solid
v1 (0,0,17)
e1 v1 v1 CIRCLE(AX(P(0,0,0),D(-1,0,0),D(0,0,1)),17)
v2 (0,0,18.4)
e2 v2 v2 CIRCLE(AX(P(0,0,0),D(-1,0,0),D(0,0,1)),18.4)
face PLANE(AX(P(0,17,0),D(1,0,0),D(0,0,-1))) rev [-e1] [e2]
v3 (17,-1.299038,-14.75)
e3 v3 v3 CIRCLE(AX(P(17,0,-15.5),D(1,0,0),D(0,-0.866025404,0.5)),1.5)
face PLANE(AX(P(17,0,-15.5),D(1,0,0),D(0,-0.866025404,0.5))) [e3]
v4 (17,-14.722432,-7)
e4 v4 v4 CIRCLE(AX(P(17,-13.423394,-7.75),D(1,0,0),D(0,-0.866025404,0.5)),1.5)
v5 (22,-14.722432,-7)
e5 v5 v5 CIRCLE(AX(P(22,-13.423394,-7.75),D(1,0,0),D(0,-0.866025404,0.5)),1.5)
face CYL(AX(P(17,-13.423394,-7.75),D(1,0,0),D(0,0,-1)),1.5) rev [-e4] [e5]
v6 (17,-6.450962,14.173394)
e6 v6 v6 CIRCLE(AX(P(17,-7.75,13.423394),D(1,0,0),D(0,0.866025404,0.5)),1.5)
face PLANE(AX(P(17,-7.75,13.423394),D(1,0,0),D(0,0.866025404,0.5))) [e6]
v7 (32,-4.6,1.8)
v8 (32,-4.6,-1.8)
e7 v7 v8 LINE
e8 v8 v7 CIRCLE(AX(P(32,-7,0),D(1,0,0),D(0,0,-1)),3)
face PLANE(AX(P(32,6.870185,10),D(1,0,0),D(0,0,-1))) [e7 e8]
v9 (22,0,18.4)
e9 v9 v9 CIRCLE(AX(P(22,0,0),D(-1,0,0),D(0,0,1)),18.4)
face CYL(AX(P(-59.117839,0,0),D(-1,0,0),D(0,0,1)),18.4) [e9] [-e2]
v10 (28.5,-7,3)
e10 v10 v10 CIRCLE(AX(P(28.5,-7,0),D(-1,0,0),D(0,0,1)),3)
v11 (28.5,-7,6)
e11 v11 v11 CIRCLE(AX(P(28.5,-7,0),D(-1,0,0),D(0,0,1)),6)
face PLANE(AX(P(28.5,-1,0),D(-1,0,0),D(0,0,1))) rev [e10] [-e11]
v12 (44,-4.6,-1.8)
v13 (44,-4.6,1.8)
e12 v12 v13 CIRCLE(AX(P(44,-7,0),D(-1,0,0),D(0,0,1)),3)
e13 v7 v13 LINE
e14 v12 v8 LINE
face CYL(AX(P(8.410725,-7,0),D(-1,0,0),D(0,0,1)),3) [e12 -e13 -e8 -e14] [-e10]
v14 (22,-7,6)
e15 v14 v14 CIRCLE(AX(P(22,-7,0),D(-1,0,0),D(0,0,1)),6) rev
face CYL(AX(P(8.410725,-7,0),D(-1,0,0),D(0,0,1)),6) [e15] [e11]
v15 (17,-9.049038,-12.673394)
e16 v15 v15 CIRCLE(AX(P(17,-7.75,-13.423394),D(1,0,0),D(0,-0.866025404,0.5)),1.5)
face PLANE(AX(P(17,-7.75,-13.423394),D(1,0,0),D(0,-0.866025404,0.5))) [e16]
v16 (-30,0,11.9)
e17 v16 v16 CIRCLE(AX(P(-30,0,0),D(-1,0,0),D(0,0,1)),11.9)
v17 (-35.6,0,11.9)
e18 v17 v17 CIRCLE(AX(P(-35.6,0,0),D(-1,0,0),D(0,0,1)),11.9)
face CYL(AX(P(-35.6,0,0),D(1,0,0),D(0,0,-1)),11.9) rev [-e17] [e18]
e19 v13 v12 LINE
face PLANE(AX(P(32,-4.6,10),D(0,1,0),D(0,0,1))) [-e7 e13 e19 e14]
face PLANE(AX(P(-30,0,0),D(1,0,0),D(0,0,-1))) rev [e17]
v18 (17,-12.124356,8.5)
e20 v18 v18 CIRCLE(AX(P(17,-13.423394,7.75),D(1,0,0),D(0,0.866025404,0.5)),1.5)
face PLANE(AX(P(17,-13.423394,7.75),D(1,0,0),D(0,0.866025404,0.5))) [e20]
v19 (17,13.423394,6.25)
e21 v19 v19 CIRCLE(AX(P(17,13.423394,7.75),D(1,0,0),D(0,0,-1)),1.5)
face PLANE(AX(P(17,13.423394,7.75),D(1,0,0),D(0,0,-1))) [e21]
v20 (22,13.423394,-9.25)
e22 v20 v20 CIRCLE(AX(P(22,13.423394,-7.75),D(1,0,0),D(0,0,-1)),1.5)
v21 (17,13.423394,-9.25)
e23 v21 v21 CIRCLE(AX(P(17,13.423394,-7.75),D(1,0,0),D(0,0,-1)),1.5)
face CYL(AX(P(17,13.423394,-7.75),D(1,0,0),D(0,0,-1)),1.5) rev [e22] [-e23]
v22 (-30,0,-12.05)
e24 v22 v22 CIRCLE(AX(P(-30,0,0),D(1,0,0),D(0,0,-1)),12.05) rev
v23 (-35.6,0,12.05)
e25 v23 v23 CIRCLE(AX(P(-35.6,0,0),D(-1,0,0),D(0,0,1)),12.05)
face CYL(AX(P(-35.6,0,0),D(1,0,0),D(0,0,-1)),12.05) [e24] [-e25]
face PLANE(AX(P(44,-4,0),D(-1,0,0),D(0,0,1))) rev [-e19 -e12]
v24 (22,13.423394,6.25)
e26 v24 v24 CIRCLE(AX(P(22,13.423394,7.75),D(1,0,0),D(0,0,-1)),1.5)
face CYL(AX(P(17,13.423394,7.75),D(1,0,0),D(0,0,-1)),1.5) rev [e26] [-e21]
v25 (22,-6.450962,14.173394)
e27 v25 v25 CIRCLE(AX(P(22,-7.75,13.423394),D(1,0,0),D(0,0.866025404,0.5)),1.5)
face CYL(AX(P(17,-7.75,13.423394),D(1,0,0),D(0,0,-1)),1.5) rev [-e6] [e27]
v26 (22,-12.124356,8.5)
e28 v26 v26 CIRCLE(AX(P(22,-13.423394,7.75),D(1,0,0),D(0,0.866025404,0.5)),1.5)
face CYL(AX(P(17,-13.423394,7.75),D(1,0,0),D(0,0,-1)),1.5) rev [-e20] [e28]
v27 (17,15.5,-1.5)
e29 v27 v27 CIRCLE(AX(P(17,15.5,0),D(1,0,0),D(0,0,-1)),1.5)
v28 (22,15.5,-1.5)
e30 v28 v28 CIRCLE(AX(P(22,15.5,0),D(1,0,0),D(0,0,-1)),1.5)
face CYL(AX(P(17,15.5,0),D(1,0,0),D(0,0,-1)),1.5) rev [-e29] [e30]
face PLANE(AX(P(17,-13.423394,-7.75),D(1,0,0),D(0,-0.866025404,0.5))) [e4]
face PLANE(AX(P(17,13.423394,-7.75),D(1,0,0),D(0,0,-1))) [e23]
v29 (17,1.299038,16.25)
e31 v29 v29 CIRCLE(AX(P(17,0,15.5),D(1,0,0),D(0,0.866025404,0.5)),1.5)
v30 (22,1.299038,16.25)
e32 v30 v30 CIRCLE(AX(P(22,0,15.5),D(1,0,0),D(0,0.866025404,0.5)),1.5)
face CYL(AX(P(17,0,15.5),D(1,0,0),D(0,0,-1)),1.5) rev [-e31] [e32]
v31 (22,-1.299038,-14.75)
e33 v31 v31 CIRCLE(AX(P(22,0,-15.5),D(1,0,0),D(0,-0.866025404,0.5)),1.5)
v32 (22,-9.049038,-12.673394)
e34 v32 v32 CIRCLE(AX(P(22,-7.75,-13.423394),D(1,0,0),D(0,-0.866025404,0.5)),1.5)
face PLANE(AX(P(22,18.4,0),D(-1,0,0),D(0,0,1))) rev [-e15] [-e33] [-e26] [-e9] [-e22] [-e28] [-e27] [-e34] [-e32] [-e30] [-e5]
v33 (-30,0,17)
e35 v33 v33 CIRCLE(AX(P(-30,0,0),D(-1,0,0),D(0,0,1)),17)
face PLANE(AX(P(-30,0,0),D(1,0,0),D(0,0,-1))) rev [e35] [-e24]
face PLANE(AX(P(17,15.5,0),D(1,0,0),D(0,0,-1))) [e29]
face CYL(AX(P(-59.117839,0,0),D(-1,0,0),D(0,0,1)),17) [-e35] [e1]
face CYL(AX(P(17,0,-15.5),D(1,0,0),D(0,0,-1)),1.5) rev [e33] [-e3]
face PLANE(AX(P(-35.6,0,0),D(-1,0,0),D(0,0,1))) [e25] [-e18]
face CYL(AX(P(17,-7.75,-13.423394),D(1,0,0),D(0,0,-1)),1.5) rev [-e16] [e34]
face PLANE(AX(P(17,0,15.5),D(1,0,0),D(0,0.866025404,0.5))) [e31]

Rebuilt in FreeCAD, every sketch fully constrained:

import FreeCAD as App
import Part
import Sketcher
from FreeCAD import Vector
Q = App.Units.Quantity

doc = App.newDocument("Part")
params = doc.addObject("Spreadsheet::Sheet", "Params")
for row, (alias, value) in enumerate([
    ("sketch1_width", "52 mm"),
    ("sketch1_width2", "22 mm"),
    ("sketch1_height", "17 mm"),
    ("sketch1_height2", "18.4 mm"),
    ("revolution_angle", "360 deg"),
    ("sketch2_width", "22 mm"),
    ("sketch2_height", "6 mm"),
    ("sketch2_width2", "6.5 mm"),
    ("revolution2_angle", "360 deg"),
    ("sketch4_diameter", "24.1 mm"),
    ("sketch4_diameter2", "23.8 mm"),
    ("pad1_length", "5.6 mm"),
    ("sketch5_diameter", "3 mm"),
    ("pocket2_length", "5 mm"),
], start=1):
    params.set(f"A{row}", alias)
    params.set(f"B{row}", "=" + value)
    params.setAlias(f"B{row}", alias)

body = doc.addObject("PartDesign::Body", "Body")

# Sketch on XY plane
sketch1 = body.newObject("Sketcher::SketchObject", "Sketch")
sketch1.AttachmentSupport = (doc.getObject("XY_Plane"), [""])
sketch1.MapMode = "FlatFace"
sketch1.addGeometry([
    Part.LineSegment(Vector(-30, 17, 0), Vector(-30, 0, 0)),  # 0
    Part.LineSegment(Vector(-30, 0, 0), Vector(22, 0, 0)),  # 1
    Part.LineSegment(Vector(22, 0, 0), Vector(22, 18.4, 0)),  # 2
    Part.LineSegment(Vector(22, 18.4, 0), Vector(0, 18.4, 0)),  # 3
    Part.LineSegment(Vector(0, 18.4, 0), Vector(0, 17, 0)),  # 4
    Part.LineSegment(Vector(0, 17, 0), Vector(-30, 17, 0)),  # 5
], False)
sketch1.addConstraint([
    Sketcher.Constraint("Coincident", 0, 2, 1, 1),
    Sketcher.Constraint("Coincident", 1, 2, 2, 1),
    Sketcher.Constraint("Coincident", 2, 2, 3, 1),
    Sketcher.Constraint("Coincident", 3, 2, 4, 1),
    Sketcher.Constraint("Coincident", 4, 2, 5, 1),
    Sketcher.Constraint("Coincident", 5, 2, 0, 1),
    Sketcher.Constraint("Vertical", 0),
    Sketcher.Constraint("Horizontal", 1),
    Sketcher.Constraint("Vertical", 2),
    Sketcher.Constraint("Horizontal", 3),
    Sketcher.Constraint("Vertical", 4),
    Sketcher.Constraint("Horizontal", 5),
    Sketcher.Constraint("PointOnObject", 0, 2, -1),
    Sketcher.Constraint("PointOnObject", 3, 2, -2),
    Sketcher.Constraint("DistanceX", 1, 1, 1, 2, Q("52 mm")),
    Sketcher.Constraint("DistanceX", 3, 2, 3, 1, Q("22 mm")),
    Sketcher.Constraint("DistanceY", 0, 2, 0, 1, Q("17 mm")),
    Sketcher.Constraint("DistanceY", 2, 1, 2, 2, Q("18.4 mm")),
])
sketch1.setExpression("Constraints[14]", "Params.sketch1_width")
sketch1.setExpression("Constraints[15]", "Params.sketch1_width2")
sketch1.setExpression("Constraints[16]", "Params.sketch1_height")
sketch1.setExpression("Constraints[17]", "Params.sketch1_height2")
revolution = body.newObject("PartDesign::Revolution", "Revolution")
revolution.Profile = sketch1
revolution.ReferenceAxis = (sketch1, ["H_Axis"])
revolution.setExpression("Angle", "Params.revolution_angle")

# Sketch on XY plane
sketch2 = body.newObject("Sketcher::SketchObject", "Sketch001")
sketch2.AttachmentSupport = (doc.getObject("XY_Plane"), [""])
sketch2.MapMode = "FlatFace"
sketch2.addGeometry([
    Part.LineSegment(Vector(28.5, -1, 0), Vector(22, -1, 0)),  # 0
    Part.LineSegment(Vector(22, -1, 0), Vector(22, -7, 0)),  # 1
    Part.LineSegment(Vector(22, -7, 0), Vector(44, -7, 0)),  # 2
    Part.LineSegment(Vector(44, -7, 0), Vector(44, -4, 0)),  # 3
    Part.LineSegment(Vector(44, -4, 0), Vector(28.5, -4, 0)),  # 4
    Part.LineSegment(Vector(28.5, -4, 0), Vector(28.5, -1, 0)),  # 5
], False)
sketch2.addGeometry(Part.LineSegment(Vector(22, -7, 0), Vector(44, -7, 0)), True)  # axis
sketch2.addConstraint([
    Sketcher.Constraint("Coincident", 0, 2, 1, 1),
    Sketcher.Constraint("Coincident", 1, 2, 2, 1),
    Sketcher.Constraint("Coincident", 2, 2, 3, 1),
    Sketcher.Constraint("Coincident", 3, 2, 4, 1),
    Sketcher.Constraint("Coincident", 4, 2, 5, 1),
    Sketcher.Constraint("Coincident", 5, 2, 0, 1),
    Sketcher.Constraint("Horizontal", 0),
    Sketcher.Constraint("Vertical", 1),
    Sketcher.Constraint("Horizontal", 2),
    Sketcher.Constraint("Vertical", 3),
    Sketcher.Constraint("Horizontal", 4),
    Sketcher.Constraint("Vertical", 5),
    Sketcher.Constraint("Horizontal", 6),
    Sketcher.Constraint("Coincident", 6, 1, 1, 2),
    Sketcher.Constraint("Vertical", 3, 2, 6, 2),
    Sketcher.Constraint("Equal", 3, 5),
    Sketcher.Constraint("DistanceX", 2, 1, 2, 2, Q("22 mm")),
    Sketcher.Constraint("DistanceY", 1, 2, 1, 1, Q("6 mm")),
    Sketcher.Constraint("DistanceX", 0, 2, 0, 1, Q("6.5 mm")),
    Sketcher.Constraint("DistanceX", -1, 1, 0, 2, Q("22 mm")),
    Sketcher.Constraint("DistanceY", 0, 2, -1, 1, Q("1 mm")),
])
sketch2.setExpression("Constraints[16]", "Params.sketch2_width")
sketch2.setExpression("Constraints[17]", "Params.sketch2_height")
sketch2.setExpression("Constraints[18]", "Params.sketch2_width2")
revolution2 = body.newObject("PartDesign::Revolution", "Revolution001")
revolution2.Profile = sketch2
revolution2.ReferenceAxis = (sketch2, ["Axis0"])
revolution2.setExpression("Angle", "Params.revolution2_angle")

# Sketch on XY plane
sketch3 = body.newObject("Sketcher::SketchObject", "Sketch002")
sketch3.AttachmentSupport = (doc.getObject("XY_Plane"), [""])
sketch3.MapMode = "FlatFace"
sketch3.addGeometry([
    Part.LineSegment(Vector(32, 7, 0), Vector(32, -5, 0)),
    Part.LineSegment(Vector(32, -5, 0), Vector(51, -5, 0)),
    Part.LineSegment(Vector(51, -5, 0), Vector(51, 7, 0)),
    Part.LineSegment(Vector(51, 7, 0), Vector(32, 7, 0)),
], False)
sketch3.addConstraint([
    Sketcher.Constraint("Coincident", 0, 2, 1, 1),
    Sketcher.Constraint("Coincident", 1, 2, 2, 1),
    Sketcher.Constraint("Coincident", 2, 2, 3, 1),
    Sketcher.Constraint("Coincident", 3, 2, 0, 1),
    Sketcher.Constraint("Vertical", 0),
    Sketcher.Constraint("Horizontal", 1),
    Sketcher.Constraint("Vertical", 2),
    Sketcher.Constraint("Horizontal", 3),
    Sketcher.Constraint("DistanceX", -1, 1, 0, 2, Q("32 mm")),
    Sketcher.Constraint("DistanceY", 0, 2, -1, 1, Q("4.6 mm")),
    Sketcher.Constraint("DistanceX", 1, 1, 1, 2, Q("18.656759 mm")),
    Sketcher.Constraint("DistanceY", 0, 2, 0, 1, Q("11.470185 mm")),
])
pocket1 = body.newObject("PartDesign::Pocket", "Pocket")
pocket1.Profile = sketch3
pocket1.Type = "ThroughAll"
pocket1.Midplane = True

# Sketch on YZ plane
sketch4 = body.newObject("Sketcher::SketchObject", "Sketch003")
sketch4.AttachmentSupport = (doc.getObject("YZ_Plane"), [""])
sketch4.MapMode = "FlatFace"
sketch4.AttachmentOffset = App.Placement(Vector(0, 0, -30), App.Rotation())
sketch4.addGeometry([
    Part.Circle(Vector(0, 0, 0), Vector(0, 0, 1), 12),
    Part.Circle(Vector(0, 0, 0), Vector(0, 0, 1), 12),
], False)
sketch4.addConstraint([
    Sketcher.Constraint("Coincident", 0, 3, -1, 1),
    Sketcher.Constraint("Coincident", 1, 3, -1, 1),
    Sketcher.Constraint("Diameter", 0, Q("24.1 mm")),
    Sketcher.Constraint("Diameter", 1, Q("23.8 mm")),
])
sketch4.setExpression("Constraints[2]", "Params.sketch4_diameter")
sketch4.setExpression("Constraints[3]", "Params.sketch4_diameter2")
pad1 = body.newObject("PartDesign::Pad", "Pad")
pad1.Profile = sketch4
pad1.setExpression("Length", "Params.pad1_length")
pad1.Reversed = True

# Sketch on YZ plane
sketch5 = body.newObject("Sketcher::SketchObject", "Sketch004")
sketch5.AttachmentSupport = (doc.getObject("YZ_Plane"), [""])
sketch5.MapMode = "FlatFace"
sketch5.AttachmentOffset = App.Placement(Vector(0, 0, 22), App.Rotation())
sketch5.addGeometry([
    Part.Circle(Vector(15.5, 0, 0), Vector(0, 0, 1), 1.5),
    Part.Circle(Vector(13.4, -7.8, 0), Vector(0, 0, 1), 1.5),
    Part.Circle(Vector(13.4, 7.8, 0), Vector(0, 0, 1), 1.5),
], False)
sketch5.addConstraint([
    Sketcher.Constraint("Equal", 0, 1),
    Sketcher.Constraint("Equal", 1, 2),
    Sketcher.Constraint("Symmetric", 1, 3, 2, 3, -1),
    Sketcher.Constraint("PointOnObject", 0, 3, -1),
    Sketcher.Constraint("Diameter", 0, Q("3 mm")),
    Sketcher.Constraint("DistanceX", -1, 1, 0, 3, Q("15.5 mm")),
    Sketcher.Constraint("DistanceY", 1, 3, 2, 3, Q("15.5 mm")),
    Sketcher.Constraint("DistanceX", -1, 1, 1, 3, Q("13.423394 mm")),
])
sketch5.setExpression("Constraints[4]", "Params.sketch5_diameter")
pocket2 = body.newObject("PartDesign::Pocket", "Pocket001")
pocket2.Profile = sketch5
pocket2.setExpression("Length", "Params.pocket2_length")
doc.recompute()

polarpattern = body.newObject("PartDesign::PolarPattern", "PolarPattern")
polarpattern.Originals = [pocket2]
polarpattern.Axis = (doc.getObject("X_Axis"), [""])
polarpattern.Angle = 360
polarpattern.Occurrences = 3
body.Tip = polarpattern

doc.recompute()
